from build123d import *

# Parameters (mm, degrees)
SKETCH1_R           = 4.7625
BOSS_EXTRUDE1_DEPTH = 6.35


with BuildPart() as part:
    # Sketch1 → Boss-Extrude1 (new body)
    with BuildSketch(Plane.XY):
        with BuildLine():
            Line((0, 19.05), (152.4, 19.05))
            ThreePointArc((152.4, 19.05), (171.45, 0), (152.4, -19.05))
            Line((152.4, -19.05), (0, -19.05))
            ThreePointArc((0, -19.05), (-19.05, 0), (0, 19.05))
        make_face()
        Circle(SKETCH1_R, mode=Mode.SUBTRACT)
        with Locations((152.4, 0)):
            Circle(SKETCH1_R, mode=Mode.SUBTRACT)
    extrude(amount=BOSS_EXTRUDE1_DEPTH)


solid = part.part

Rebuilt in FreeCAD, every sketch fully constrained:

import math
import FreeCAD as App
import Part
import Sketcher

V = App.Vector
Q = App.Units.Quantity

doc = App.newDocument("Part")
body = doc.addObject("PartDesign::Body", "Body")

sketch1 = doc.addObject("Sketcher::SketchObject", "Sketch")
body.addObject(sketch1)
sketch1.AttachmentSupport = (doc.XY_Plane, [""])
sketch1.MapMode = "FlatFace"
sketch1.addGeometry([
    Part.LineSegment(V(152.4, 19.1, 0), V(0, 19.1, 0)),
    Part.ArcOfCircle(Part.Circle(V(0, 0, 0), V(0, 0, 1), 19.1), math.radians(90), math.radians(270)),
    Part.LineSegment(V(0, -19.1, 0), V(152.4, -19.1, 0)),
    Part.ArcOfCircle(Part.Circle(V(152.4, 0, 0), V(0, 0, 1), 19.1), math.radians(-90), math.radians(90)),
    Part.Circle(V(152.4, 0, 0), V(0, 0, 1), 4.8),
    Part.Circle(V(0, 0, 0), V(0, 0, 1), 4.8),
], False)
sketch1.addConstraint([
    Sketcher.Constraint("Tangent", 0, 2, 1, 1),
    Sketcher.Constraint("Tangent", 1, 2, 2, 1),
    Sketcher.Constraint("Tangent", 2, 2, 3, 1),
    Sketcher.Constraint("Tangent", 3, 2, 0, 1),
    Sketcher.Constraint("Horizontal", 0),
    Sketcher.Constraint("Horizontal", 2),
    Sketcher.Constraint("Coincident", 1, 3, -1, 1),
    Sketcher.Constraint("Coincident", 5, 3, -1, 1),
    Sketcher.Constraint("Coincident", 4, 3, 3, 3),
    Sketcher.Constraint("Equal", 4, 5),
    Sketcher.Constraint("DistanceX", 0, 2, 0, 1, Q("6 in")),
    Sketcher.Constraint("Radius", 1, Q("0.75 in")),
    Sketcher.Constraint("Diameter", 4, Q("0.375 in")),
])
pad1 = doc.addObject("PartDesign::Pad", "Pad")
body.addObject(pad1)
pad1.Profile = sketch1
pad1.Length = Q("0.25 in")

doc.recompute()
